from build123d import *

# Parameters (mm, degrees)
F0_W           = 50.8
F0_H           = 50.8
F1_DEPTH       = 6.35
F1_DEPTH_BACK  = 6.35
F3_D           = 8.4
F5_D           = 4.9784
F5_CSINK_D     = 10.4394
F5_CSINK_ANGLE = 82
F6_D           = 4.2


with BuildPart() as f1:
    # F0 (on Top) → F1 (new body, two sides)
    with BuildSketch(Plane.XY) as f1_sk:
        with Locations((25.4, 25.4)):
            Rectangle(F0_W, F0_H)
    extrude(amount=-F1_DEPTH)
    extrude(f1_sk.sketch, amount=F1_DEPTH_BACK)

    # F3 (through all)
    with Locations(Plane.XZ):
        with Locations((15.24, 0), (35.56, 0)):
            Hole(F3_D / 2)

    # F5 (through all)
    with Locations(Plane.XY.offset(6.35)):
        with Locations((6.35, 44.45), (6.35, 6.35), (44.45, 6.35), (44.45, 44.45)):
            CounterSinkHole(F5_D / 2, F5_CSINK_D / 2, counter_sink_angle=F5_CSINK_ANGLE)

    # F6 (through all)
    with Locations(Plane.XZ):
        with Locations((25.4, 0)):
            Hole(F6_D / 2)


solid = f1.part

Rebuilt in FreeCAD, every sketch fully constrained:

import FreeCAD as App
import Part
import Sketcher
from FreeCAD import Vector
Q = App.Units.Quantity

doc = App.newDocument("Part")
params = doc.addObject("Spreadsheet::Sheet", "Params")
for row, (alias, value) in enumerate([
    ("sketch1_width", "2 in"),
    ("pad1_length", "0.25 in"),
    ("pad1_length2", "0.25 in"),
    ("hole_diameter", "8.4 mm"),
    ("sketch3_diameter", "0.196 in"),
    ("hole2_diameter", "0.196 in"),
    ("hole2_csink_diameter", "0.411 in"),
    ("hole3_diameter", "4.2 mm"),
], start=1):
    params.set(f"A{row}", alias)
    params.set(f"B{row}", "=" + value)
    params.setAlias(f"B{row}", alias)

body = doc.addObject("PartDesign::Body", "Body")

sketch1 = body.newObject("Sketcher::SketchObject", "Sketch")
sketch1.AttachmentSupport = (doc.getObject("XY_Plane"), [""])
sketch1.MapMode = "FlatFace"
sketch1.addGeometry(Part.LineSegment(Vector(0, 51, 0), Vector(0, 0, 0)), False)
sketch1.addGeometry(Part.LineSegment(Vector(0, 0, 0), Vector(51, 0, 0)), False)
sketch1.addGeometry(Part.LineSegment(Vector(51, 0, 0), Vector(51, 51, 0)), False)
sketch1.addGeometry(Part.LineSegment(Vector(51, 51, 0), Vector(0, 51, 0)), False)
sketch1.addConstraint(Sketcher.Constraint("Coincident", 0, 2, 1, 1))
sketch1.addConstraint(Sketcher.Constraint("Coincident", 1, 2, 2, 1))
sketch1.addConstraint(Sketcher.Constraint("Coincident", 2, 2, 3, 1))
sketch1.addConstraint(Sketcher.Constraint("Coincident", 3, 2, 0, 1))
sketch1.addConstraint(Sketcher.Constraint("Vertical", 0))
sketch1.addConstraint(Sketcher.Constraint("Horizontal", 1))
sketch1.addConstraint(Sketcher.Constraint("Vertical", 2))
sketch1.addConstraint(Sketcher.Constraint("Horizontal", 3))
sketch1.addConstraint(Sketcher.Constraint("Coincident", 0, 2, -1, 1))
sketch1.addConstraint(Sketcher.Constraint("Equal", 3, 0))
sketch1.addConstraint(Sketcher.Constraint("DistanceX", 1, 1, 1, 2, Q("2 in")))
sketch1.setExpression("Constraints[10]", "Params.sketch1_width")
pad1 = body.newObject("PartDesign::Pad", "Pad")
pad1.Profile = sketch1
pad1.Type = "TwoLengths"
pad1.setExpression("Length", "Params.pad1_length")
pad1.setExpression("Length2", "Params.pad1_length2")
pad1.Reversed = True

sketch2 = body.newObject("Sketcher::SketchObject", "Sketch001")
sketch2.AttachmentSupport = (doc.getObject("XZ_Plane"), [""])
sketch2.MapMode = "FlatFace"
sketch2.addGeometry(Part.Circle(Vector(15.2, 0, 0), Vector(0, 0, 1), 4.2), False)
sketch2.addGeometry(Part.Circle(Vector(35.6, 0, 0), Vector(0, 0, 1), 4.2), False)
sketch2.addConstraint(Sketcher.Constraint("Equal", 0, 1))
sketch2.addConstraint(Sketcher.Constraint("PointOnObject", 0, 3, -1))
sketch2.addConstraint(Sketcher.Constraint("PointOnObject", 1, 3, -1))
sketch2.addConstraint(Sketcher.Constraint("DistanceX", -1, 1, 0, 3, Q("0.6 in")))
sketch2.addConstraint(Sketcher.Constraint("DistanceX", -1, 1, 1, 3, Q("1.4 in")))
sketch2.addConstraint(Sketcher.Constraint("Diameter", 0, 8.4))
doc.recompute()
hole = body.newObject("PartDesign::Hole", "Hole")
hole.Profile = sketch2
hole.ThreadType = "None"
hole.setExpression("Diameter", "Params.hole_diameter")
hole.DepthType = "ThroughAll"

sketch3 = body.newObject("Sketcher::SketchObject", "Sketch002")
sketch3.AttachmentSupport = (doc.getObject("XY_Plane"), [""])
sketch3.MapMode = "FlatFace"
sketch3.AttachmentOffset = App.Placement(Vector(0, 0, 0.25 * 25.4), App.Rotation())
sketch3.addGeometry(Part.Circle(Vector(6.3, 44.5, 0), Vector(0, 0, 1), 2.5), False)
sketch3.addGeometry(Part.Circle(Vector(6.3, 6.3, 0), Vector(0, 0, 1), 2.5), False)
sketch3.addGeometry(Part.Circle(Vector(44.5, 6.3, 0), Vector(0, 0, 1), 2.5), False)
sketch3.addGeometry(Part.Circle(Vector(44.5, 44.5, 0), Vector(0, 0, 1), 2.5), False)
sketch3.addConstraint(Sketcher.Constraint("Equal", 0, 1))
sketch3.addConstraint(Sketcher.Constraint("Equal", 1, 2))
sketch3.addConstraint(Sketcher.Constraint("Equal", 2, 3))
sketch3.addConstraint(Sketcher.Constraint("Horizontal", 1, 3, 2, 3))
sketch3.addConstraint(Sketcher.Constraint("Horizontal", 0, 3, 3, 3))
sketch3.addConstraint(Sketcher.Constraint("Vertical", 0, 3, 1, 3))
sketch3.addConstraint(Sketcher.Constraint("Vertical", 2, 3, 3, 3))
sketch3.addConstraint(Sketcher.Constraint("Diameter", 0, Q("0.196 in")))
sketch3.addConstraint(Sketcher.Constraint("DistanceY", 1, 3, 0, 3, Q("1.5 in")))
sketch3.addConstraint(Sketcher.Constraint("DistanceX", 1, 3, 2, 3, Q("1.5 in")))
sketch3.addConstraint(Sketcher.Constraint("DistanceX", -1, 1, 0, 3, Q("0.25 in")))
sketch3.addConstraint(Sketcher.Constraint("DistanceY", -1, 1, 0, 3, Q("1.75 in")))
sketch3.setExpression("Constraints[7]", "Params.sketch3_diameter")
doc.recompute()
hole2 = body.newObject("PartDesign::Hole", "Hole001")
hole2.Profile = sketch3
hole2.ThreadType = "None"
hole2.setExpression("Diameter", "Params.hole2_diameter")
hole2.DepthType = "ThroughAll"
hole2.HoleCutType = "Countersink"
hole2.setExpression("HoleCutDiameter", "Params.hole2_csink_diameter")
hole2.HoleCutCountersinkAngle = 82

sketch4 = body.newObject("Sketcher::SketchObject", "Sketch003")
sketch4.AttachmentSupport = (doc.getObject("XZ_Plane"), [""])
sketch4.MapMode = "FlatFace"
sketch4.addGeometry(Part.Circle(Vector(25.4, 0, 0), Vector(0, 0, 1), 2.1), False)
sketch4.addConstraint(Sketcher.Constraint("PointOnObject", 0, 3, -1))
sketch4.addConstraint(Sketcher.Constraint("DistanceX", -1, 1, 0, 3, Q("1 in")))
sketch4.addConstraint(Sketcher.Constraint("Diameter", 0, 4.2))
doc.recompute()
hole3 = body.newObject("PartDesign::Hole", "Hole002")
hole3.Profile = sketch4
hole3.ThreadType = "None"
hole3.setExpression("Diameter", "Params.hole3_diameter")
hole3.DepthType = "ThroughAll"

doc.recompute()
